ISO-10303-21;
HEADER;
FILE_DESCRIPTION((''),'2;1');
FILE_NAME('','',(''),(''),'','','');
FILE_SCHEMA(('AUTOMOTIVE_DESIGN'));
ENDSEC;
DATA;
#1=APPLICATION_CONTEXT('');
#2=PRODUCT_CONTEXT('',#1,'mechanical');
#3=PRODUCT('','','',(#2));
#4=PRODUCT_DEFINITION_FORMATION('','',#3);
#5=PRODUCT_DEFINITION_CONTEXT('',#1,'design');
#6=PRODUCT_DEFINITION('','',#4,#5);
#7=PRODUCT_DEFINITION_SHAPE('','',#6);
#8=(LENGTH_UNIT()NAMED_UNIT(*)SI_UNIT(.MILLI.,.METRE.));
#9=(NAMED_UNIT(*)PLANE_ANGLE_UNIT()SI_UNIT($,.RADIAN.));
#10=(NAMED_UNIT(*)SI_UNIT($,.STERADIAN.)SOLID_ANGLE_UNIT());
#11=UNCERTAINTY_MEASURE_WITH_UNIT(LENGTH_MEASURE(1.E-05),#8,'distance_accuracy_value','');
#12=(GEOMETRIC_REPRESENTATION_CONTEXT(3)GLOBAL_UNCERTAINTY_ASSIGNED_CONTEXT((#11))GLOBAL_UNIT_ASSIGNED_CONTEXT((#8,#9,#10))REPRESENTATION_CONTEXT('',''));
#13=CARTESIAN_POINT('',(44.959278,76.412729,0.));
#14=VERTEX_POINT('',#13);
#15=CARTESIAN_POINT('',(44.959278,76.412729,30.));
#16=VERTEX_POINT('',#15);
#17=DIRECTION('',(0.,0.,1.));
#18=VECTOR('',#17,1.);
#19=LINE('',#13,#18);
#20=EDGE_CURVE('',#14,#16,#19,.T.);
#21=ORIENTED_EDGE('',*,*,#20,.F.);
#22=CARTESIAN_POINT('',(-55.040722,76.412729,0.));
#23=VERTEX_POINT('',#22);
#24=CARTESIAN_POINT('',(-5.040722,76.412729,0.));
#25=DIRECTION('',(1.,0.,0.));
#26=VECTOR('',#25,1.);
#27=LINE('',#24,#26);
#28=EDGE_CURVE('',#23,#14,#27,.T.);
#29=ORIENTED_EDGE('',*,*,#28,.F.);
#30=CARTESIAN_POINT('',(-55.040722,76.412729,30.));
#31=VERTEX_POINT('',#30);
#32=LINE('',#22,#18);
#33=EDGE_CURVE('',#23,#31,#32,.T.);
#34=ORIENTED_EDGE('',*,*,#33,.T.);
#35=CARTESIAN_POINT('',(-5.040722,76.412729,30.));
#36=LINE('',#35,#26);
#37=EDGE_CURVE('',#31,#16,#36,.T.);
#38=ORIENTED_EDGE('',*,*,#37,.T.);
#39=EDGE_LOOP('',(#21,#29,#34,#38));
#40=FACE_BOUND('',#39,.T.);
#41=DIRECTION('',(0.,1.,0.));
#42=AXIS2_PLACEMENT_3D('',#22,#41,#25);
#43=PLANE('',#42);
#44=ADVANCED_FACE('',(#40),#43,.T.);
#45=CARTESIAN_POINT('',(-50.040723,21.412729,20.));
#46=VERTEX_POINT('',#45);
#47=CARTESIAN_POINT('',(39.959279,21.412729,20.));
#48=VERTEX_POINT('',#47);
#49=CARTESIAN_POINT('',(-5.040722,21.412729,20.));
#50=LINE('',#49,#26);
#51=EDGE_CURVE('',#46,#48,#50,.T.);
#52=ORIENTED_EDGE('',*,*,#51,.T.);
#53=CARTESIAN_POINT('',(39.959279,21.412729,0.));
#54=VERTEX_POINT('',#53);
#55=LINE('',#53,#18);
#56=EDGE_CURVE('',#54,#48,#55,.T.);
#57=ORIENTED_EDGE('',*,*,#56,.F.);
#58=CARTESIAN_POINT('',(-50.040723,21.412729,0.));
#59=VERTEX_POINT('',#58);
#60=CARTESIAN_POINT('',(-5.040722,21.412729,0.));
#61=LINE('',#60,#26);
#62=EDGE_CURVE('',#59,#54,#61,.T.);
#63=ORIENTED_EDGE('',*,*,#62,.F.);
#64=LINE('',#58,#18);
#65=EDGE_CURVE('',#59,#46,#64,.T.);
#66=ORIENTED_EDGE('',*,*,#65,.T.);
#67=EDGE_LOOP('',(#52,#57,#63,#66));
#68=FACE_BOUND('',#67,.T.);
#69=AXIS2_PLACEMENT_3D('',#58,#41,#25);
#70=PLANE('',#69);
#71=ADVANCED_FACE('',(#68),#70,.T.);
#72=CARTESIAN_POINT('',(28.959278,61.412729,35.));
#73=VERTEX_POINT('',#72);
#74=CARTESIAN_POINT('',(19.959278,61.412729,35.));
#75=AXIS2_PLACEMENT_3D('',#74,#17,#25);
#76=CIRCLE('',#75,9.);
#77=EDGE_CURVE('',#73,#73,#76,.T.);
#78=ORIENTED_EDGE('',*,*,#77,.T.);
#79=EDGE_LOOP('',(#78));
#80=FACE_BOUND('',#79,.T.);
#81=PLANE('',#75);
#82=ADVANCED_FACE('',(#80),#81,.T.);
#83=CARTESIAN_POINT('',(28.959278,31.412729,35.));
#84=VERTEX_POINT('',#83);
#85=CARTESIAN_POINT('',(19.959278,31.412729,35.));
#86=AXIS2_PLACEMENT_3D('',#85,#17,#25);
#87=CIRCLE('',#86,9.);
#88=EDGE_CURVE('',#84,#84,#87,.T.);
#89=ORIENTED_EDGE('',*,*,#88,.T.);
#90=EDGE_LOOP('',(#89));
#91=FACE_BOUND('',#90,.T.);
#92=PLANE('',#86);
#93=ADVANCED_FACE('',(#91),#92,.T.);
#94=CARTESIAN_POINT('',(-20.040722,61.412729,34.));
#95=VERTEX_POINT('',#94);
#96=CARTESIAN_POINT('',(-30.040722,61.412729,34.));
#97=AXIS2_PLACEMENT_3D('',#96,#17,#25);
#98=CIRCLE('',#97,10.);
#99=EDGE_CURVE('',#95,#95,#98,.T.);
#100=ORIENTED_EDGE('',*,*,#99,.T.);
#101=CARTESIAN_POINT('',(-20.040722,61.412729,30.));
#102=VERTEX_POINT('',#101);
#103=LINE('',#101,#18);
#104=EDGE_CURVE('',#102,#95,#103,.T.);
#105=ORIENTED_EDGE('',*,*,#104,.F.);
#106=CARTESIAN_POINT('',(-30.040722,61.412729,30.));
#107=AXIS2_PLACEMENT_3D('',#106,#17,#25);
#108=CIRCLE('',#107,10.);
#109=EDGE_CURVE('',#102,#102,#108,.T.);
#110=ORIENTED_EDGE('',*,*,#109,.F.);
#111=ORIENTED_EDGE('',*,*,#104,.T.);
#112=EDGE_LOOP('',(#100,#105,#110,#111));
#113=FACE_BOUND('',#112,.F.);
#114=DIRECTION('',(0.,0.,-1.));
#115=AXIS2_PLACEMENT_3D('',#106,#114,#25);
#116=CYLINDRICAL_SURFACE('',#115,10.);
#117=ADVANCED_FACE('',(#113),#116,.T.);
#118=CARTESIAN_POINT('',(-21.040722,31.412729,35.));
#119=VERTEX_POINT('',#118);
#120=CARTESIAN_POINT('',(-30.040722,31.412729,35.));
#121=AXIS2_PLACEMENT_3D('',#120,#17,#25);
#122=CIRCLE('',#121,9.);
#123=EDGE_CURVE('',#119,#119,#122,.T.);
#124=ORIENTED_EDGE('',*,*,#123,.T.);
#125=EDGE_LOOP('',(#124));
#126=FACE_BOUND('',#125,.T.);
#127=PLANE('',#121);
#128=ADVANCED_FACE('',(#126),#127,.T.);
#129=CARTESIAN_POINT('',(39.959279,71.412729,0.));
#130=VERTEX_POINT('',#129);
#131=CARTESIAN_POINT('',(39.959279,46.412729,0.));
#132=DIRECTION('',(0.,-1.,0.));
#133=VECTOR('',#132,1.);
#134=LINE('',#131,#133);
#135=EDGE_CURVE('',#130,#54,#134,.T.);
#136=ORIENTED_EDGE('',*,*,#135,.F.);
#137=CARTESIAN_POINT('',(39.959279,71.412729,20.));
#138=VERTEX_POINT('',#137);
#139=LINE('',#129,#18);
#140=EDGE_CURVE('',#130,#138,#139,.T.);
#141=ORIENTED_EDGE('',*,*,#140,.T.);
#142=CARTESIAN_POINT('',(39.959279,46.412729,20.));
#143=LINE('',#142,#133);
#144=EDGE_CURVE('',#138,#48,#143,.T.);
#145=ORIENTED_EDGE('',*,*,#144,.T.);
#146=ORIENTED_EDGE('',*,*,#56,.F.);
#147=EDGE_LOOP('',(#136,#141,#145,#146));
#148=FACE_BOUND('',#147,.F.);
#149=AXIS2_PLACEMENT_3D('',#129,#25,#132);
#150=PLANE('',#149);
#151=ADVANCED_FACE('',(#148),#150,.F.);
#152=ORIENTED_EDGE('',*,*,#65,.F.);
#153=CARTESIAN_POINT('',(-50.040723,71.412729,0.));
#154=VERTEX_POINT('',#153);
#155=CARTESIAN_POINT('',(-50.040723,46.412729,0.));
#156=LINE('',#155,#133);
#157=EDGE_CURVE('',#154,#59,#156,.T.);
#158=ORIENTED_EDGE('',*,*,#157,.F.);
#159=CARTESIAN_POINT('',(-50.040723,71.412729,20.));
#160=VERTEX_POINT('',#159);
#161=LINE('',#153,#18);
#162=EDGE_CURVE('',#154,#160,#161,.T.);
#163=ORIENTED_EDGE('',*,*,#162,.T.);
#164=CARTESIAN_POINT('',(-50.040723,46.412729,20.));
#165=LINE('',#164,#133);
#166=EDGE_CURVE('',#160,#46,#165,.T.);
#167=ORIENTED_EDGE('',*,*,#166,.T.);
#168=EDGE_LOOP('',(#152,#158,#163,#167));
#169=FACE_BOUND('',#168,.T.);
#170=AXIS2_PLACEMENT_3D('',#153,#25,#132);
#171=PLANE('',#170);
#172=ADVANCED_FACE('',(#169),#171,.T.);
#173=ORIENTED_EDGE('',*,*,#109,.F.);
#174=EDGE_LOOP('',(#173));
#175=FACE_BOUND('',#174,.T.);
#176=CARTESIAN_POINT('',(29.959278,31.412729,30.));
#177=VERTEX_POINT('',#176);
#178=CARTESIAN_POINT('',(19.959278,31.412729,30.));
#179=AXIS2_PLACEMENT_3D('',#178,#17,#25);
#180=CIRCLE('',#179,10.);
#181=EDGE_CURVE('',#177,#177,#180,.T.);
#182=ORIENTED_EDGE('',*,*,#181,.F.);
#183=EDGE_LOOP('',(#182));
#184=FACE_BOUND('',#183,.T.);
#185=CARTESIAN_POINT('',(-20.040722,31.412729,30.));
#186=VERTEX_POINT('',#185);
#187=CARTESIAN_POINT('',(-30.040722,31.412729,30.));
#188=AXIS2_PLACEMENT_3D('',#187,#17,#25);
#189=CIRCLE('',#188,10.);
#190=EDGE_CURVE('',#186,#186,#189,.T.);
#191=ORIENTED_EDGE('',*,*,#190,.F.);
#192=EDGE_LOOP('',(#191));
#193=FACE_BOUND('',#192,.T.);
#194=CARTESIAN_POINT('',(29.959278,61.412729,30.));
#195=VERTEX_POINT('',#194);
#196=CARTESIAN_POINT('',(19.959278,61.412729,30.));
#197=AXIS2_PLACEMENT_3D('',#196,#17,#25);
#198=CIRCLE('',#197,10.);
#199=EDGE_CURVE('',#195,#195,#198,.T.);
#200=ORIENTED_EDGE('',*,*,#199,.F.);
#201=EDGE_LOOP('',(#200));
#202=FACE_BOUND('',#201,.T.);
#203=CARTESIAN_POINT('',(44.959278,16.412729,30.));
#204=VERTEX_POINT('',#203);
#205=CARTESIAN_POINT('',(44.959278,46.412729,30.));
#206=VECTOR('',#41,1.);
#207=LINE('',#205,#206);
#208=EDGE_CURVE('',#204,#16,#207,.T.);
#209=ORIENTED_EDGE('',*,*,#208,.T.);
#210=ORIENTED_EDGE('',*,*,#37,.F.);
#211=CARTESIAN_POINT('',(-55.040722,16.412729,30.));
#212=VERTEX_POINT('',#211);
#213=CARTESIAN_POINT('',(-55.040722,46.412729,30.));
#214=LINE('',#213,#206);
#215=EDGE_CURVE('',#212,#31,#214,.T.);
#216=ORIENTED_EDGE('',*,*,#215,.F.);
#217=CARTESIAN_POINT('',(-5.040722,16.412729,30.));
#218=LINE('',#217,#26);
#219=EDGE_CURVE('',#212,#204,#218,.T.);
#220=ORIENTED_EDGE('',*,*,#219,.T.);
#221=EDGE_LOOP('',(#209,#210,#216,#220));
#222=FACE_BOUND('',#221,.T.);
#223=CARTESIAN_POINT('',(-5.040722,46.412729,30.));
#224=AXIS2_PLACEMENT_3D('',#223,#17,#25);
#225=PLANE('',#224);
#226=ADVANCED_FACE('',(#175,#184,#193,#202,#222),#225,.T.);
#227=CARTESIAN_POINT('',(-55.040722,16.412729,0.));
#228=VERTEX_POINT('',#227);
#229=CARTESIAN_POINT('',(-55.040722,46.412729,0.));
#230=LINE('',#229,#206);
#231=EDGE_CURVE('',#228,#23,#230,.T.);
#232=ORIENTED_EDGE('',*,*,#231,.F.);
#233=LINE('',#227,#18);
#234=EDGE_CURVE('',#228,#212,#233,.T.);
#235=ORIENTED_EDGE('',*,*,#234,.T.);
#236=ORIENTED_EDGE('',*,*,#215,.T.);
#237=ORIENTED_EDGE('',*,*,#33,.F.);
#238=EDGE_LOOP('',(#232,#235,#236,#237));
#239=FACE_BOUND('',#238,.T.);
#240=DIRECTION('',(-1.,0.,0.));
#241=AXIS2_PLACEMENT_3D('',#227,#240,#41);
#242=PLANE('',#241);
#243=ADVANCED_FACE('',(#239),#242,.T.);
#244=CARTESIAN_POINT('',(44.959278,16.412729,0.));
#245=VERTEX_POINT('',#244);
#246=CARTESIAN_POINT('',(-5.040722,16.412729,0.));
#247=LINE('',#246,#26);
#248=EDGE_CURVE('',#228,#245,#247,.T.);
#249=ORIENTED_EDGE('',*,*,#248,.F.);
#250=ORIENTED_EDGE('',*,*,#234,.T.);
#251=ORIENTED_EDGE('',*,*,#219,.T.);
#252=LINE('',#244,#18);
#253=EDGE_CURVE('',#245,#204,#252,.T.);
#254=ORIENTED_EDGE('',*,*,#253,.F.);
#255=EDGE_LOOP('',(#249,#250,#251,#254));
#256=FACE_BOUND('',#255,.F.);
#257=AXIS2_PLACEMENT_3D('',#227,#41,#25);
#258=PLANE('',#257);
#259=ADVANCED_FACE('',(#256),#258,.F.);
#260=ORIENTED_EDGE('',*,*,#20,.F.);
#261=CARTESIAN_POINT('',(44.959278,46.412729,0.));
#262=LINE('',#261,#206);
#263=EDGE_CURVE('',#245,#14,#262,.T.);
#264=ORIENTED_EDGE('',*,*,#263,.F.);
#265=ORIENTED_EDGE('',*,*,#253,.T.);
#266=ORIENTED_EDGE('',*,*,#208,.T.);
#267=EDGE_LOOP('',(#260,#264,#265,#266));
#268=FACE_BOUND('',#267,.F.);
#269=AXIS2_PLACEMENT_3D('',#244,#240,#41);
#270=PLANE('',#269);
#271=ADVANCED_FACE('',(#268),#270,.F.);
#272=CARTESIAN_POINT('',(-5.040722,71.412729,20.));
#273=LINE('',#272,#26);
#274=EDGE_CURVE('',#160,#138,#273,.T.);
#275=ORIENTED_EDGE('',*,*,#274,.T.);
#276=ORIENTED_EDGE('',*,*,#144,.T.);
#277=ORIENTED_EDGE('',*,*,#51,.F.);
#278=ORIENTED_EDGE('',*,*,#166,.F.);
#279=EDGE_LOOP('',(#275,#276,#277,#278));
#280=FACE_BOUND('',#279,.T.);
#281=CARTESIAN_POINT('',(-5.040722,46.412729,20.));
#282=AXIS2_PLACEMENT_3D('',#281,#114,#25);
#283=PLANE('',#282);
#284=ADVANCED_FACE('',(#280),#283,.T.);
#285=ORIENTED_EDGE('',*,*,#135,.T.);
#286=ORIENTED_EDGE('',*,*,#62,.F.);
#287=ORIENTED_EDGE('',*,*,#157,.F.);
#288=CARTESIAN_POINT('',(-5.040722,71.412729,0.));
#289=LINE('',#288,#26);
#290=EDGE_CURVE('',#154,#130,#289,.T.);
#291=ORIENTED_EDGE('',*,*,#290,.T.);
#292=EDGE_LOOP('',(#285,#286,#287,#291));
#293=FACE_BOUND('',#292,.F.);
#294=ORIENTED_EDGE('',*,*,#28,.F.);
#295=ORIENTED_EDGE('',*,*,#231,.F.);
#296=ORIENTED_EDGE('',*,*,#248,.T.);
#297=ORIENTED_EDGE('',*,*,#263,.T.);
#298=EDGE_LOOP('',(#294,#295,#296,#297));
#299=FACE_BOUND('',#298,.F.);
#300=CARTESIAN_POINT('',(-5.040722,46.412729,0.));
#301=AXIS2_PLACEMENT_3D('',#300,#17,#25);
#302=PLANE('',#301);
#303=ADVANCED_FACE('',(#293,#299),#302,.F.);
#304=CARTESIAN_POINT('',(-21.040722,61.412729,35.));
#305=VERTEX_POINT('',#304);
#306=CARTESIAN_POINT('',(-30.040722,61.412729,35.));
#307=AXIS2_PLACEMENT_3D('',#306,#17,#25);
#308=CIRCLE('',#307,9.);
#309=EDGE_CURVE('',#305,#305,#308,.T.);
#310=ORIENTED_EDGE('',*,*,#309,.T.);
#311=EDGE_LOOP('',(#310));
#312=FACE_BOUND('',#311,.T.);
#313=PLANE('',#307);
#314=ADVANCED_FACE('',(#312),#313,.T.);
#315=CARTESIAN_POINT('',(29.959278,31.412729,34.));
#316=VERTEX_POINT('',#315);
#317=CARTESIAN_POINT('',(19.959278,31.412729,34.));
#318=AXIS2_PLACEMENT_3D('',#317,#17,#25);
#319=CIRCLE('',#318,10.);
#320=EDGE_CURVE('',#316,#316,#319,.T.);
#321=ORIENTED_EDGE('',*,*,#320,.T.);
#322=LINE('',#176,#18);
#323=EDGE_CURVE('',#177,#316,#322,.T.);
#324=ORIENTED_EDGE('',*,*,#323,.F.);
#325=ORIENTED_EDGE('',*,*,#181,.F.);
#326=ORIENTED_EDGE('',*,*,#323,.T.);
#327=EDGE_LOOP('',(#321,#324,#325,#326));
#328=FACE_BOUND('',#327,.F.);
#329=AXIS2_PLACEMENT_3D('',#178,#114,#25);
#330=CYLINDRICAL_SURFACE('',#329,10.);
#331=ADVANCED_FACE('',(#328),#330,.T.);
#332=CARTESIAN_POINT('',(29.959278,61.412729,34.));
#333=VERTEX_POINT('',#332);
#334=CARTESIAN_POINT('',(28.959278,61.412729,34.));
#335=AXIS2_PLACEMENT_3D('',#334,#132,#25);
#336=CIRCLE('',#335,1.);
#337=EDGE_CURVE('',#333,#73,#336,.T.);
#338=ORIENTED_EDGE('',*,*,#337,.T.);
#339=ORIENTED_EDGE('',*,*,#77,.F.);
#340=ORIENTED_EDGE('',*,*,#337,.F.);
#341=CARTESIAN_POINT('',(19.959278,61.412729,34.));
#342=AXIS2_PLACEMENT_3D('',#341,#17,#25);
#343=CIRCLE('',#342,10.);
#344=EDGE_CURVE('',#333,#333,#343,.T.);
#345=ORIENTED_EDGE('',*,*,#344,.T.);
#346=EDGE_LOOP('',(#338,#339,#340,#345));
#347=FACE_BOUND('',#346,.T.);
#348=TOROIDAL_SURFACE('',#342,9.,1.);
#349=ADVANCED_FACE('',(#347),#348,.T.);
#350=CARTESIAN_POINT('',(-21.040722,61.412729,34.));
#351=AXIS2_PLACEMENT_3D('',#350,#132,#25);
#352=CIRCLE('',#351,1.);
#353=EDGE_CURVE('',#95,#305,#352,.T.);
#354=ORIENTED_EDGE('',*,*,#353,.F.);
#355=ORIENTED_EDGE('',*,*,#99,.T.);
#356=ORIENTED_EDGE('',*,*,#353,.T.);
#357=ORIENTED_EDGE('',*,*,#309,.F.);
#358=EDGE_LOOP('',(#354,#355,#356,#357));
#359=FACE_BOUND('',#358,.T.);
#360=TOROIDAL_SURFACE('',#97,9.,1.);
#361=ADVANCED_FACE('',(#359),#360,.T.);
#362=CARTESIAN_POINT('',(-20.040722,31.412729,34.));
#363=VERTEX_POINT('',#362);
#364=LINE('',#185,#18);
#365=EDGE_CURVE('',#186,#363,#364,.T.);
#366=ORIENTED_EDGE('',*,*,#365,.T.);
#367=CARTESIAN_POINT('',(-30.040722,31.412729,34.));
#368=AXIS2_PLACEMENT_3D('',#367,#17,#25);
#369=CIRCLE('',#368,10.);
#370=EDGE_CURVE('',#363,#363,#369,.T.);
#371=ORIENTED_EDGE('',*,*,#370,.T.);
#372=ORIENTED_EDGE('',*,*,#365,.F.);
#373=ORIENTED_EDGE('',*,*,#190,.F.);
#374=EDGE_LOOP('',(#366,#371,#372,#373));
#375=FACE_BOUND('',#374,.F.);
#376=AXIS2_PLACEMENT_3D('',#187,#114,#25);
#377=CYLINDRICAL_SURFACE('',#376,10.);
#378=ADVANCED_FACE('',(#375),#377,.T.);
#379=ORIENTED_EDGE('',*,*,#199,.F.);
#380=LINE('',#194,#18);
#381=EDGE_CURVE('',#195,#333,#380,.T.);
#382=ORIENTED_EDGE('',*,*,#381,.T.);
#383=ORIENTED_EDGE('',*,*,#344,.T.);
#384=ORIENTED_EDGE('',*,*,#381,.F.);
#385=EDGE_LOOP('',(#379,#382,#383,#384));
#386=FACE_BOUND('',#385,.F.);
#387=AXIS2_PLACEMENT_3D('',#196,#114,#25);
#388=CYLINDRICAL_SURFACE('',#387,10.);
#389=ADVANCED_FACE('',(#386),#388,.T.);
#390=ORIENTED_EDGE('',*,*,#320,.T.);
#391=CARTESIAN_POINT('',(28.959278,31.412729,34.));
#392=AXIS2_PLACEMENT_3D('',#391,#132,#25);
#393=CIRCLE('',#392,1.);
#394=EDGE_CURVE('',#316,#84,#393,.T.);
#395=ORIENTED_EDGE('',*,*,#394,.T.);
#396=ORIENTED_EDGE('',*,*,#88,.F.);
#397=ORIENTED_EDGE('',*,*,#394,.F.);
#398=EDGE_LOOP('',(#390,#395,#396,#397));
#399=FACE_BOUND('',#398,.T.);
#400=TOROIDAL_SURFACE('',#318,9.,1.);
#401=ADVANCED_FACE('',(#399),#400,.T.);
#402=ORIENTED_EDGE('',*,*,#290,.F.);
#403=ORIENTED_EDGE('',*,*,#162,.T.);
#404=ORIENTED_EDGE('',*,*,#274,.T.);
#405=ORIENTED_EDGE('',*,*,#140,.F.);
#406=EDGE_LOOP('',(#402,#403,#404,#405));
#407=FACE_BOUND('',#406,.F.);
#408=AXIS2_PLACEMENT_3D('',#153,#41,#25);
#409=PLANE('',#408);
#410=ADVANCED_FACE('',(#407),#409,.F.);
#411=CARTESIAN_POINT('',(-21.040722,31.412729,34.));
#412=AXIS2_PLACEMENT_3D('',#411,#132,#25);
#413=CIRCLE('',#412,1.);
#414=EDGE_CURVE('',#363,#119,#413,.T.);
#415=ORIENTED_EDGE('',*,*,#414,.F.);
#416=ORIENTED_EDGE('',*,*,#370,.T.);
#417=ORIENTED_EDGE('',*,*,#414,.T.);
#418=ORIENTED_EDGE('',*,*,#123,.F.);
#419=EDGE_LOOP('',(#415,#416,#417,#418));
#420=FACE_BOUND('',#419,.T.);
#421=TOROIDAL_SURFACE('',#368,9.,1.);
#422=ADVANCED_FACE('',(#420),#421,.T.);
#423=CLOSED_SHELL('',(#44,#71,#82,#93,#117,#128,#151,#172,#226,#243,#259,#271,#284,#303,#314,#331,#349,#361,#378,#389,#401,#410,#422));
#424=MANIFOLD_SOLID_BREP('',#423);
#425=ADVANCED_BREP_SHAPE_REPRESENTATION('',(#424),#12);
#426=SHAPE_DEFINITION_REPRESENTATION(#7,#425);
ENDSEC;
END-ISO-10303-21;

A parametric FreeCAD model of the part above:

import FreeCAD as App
import Part
import Sketcher
from FreeCAD import Vector


def edges_at(feature, points):
    """Names of the edges that pass closest to the given points."""
    edges = feature.Shape.Edges
    near = lambda p: min(range(len(edges)), key=lambda i: edges[i].distToShape(Part.Vertex(*p))[0])
    return sorted({f"Edge{near(p) + 1}" for p in points})

doc = App.newDocument("Part")
body = doc.addObject("PartDesign::Body", "Body")

# Sketch on XY plane
sketch1 = body.newObject("Sketcher::SketchObject", "Sketch")
sketch1.AttachmentSupport = (doc.getObject("XY_Plane"), [""])
sketch1.MapMode = "FlatFace"
sketch1.addGeometry([
    Part.LineSegment(Vector(-55.040722, 76.412729, 0), Vector(-55.040722, 16.412729, 0)),
    Part.LineSegment(Vector(-55.040722, 16.412729, 0), Vector(44.959278, 16.412729, 0)),
    Part.LineSegment(Vector(44.959278, 16.412729, 0), Vector(44.959278, 76.412729, 0)),
    Part.LineSegment(Vector(44.959278, 76.412729, 0), Vector(-55.040722, 76.412729, 0)),
], False)
sketch1.addConstraint([
    Sketcher.Constraint("Coincident", 0, 2, 1, 1),
    Sketcher.Constraint("Coincident", 1, 2, 2, 1),
    Sketcher.Constraint("Coincident", 2, 2, 3, 1),
    Sketcher.Constraint("Coincident", 3, 2, 0, 1),
    Sketcher.Constraint("Vertical", 0),
    Sketcher.Constraint("Horizontal", 1),
    Sketcher.Constraint("Vertical", 2),
    Sketcher.Constraint("Horizontal", 3),
    Sketcher.Constraint("DistanceX", 1, 1, 1, 2, 100.0),
    Sketcher.Constraint("DistanceY", 0, 2, 0, 1, 60.0),
    Sketcher.Constraint("DistanceY", -1, 1, 0, 2, 16.412729),
    Sketcher.Constraint("DistanceX", 0, 2, -1, 1, 55.040722),
])
pad1 = body.newObject("PartDesign::Pad", "Pad")
pad1.Profile = sketch1
pad1.Length = 30

# Sketch on XY plane
sketch2 = body.newObject("Sketcher::SketchObject", "Sketch001")
sketch2.AttachmentSupport = (doc.getObject("XY_Plane"), [""])
sketch2.MapMode = "FlatFace"
sketch2.addGeometry([
    Part.LineSegment(Vector(-50.040723, 21.412729, 0), Vector(-50.040723, 71.412729, 0)),
    Part.LineSegment(Vector(-50.040723, 71.412729, 0), Vector(39.959279, 71.412729, 0)),
    Part.LineSegment(Vector(39.959279, 71.412729, 0), Vector(39.959279, 21.412729, 0)),
    Part.LineSegment(Vector(39.959279, 21.412729, 0), Vector(-50.040723, 21.412729, 0)),
], False)
sketch2.addConstraint([
    Sketcher.Constraint("Coincident", 0, 2, 1, 1),
    Sketcher.Constraint("Coincident", 1, 2, 2, 1),
    Sketcher.Constraint("Coincident", 2, 2, 3, 1),
    Sketcher.Constraint("Coincident", 3, 2, 0, 1),
    Sketcher.Constraint("Vertical", 0),
    Sketcher.Constraint("Horizontal", 1),
    Sketcher.Constraint("Vertical", 2),
    Sketcher.Constraint("Horizontal", 3),
    Sketcher.Constraint("DistanceX", 1, 1, 1, 2, 90.000001),
    Sketcher.Constraint("DistanceY", 0, 1, 0, 2, 50.000001),
    Sketcher.Constraint("DistanceY", -1, 1, 0, 2, 71.412729),
    Sketcher.Constraint("DistanceX", -1, 1, 1, 2, 39.959279),
])
pocket1 = body.newObject("PartDesign::Pocket", "Pocket")
pocket1.Profile = sketch2
pocket1.Length = 20
pocket1.Reversed = True

# Sketch on XY plane
sketch3 = body.newObject("Sketcher::SketchObject", "Sketch002")
sketch3.AttachmentSupport = (doc.getObject("XY_Plane"), [""])
sketch3.MapMode = "FlatFace"
sketch3.AttachmentOffset = App.Placement(Vector(0, 0, 30), App.Rotation())
sketch3.addGeometry([
    Part.Circle(Vector(-30.040722, 61.412729, 0), Vector(0, 0, 1), 10),
    Part.Circle(Vector(-30.040722, 31.412729, 0), Vector(0, 0, 1), 10),
    Part.Circle(Vector(19.959278, 61.412729, 0), Vector(0, 0, 1), 10),
    Part.Circle(Vector(19.959278, 31.412729, 0), Vector(0, 0, 1), 10),
], False)
sketch3.addConstraint([
    Sketcher.Constraint("Equal", 0, 1),
    Sketcher.Constraint("Equal", 1, 2),
    Sketcher.Constraint("Equal", 2, 3),
    Sketcher.Constraint("Horizontal", 0, 3, 2, 3),
    Sketcher.Constraint("Horizontal", 1, 3, 3, 3),
    Sketcher.Constraint("Vertical", 0, 3, 1, 3),
    Sketcher.Constraint("Vertical", 2, 3, 3, 3),
    Sketcher.Constraint("Diameter", 0, 20.0),
    Sketcher.Constraint("DistanceY", 1, 3, 0, 3, 30.0),
    Sketcher.Constraint("DistanceX", 0, 3, 2, 3, 50.0),
    Sketcher.Constraint("DistanceX", 0, 3, -1, 1, 30.040722),
    Sketcher.Constraint("DistanceY", -1, 1, 0, 3, 61.412729),
])
pad2 = body.newObject("PartDesign::Pad", "Pad001")
pad2.Profile = sketch3
pad2.Length = 5
doc.recompute()

fillet = body.newObject("PartDesign::Fillet", "Fillet")
fillet.Base = (pad2, edges_at(pad2, [
    (-40.041, 61.413, 35),
    (9.959, 61.413, 35),
    (9.959, 31.413, 35),
    (-40.041, 31.413, 35),
]))
fillet.Radius = 1

doc.recompute()
